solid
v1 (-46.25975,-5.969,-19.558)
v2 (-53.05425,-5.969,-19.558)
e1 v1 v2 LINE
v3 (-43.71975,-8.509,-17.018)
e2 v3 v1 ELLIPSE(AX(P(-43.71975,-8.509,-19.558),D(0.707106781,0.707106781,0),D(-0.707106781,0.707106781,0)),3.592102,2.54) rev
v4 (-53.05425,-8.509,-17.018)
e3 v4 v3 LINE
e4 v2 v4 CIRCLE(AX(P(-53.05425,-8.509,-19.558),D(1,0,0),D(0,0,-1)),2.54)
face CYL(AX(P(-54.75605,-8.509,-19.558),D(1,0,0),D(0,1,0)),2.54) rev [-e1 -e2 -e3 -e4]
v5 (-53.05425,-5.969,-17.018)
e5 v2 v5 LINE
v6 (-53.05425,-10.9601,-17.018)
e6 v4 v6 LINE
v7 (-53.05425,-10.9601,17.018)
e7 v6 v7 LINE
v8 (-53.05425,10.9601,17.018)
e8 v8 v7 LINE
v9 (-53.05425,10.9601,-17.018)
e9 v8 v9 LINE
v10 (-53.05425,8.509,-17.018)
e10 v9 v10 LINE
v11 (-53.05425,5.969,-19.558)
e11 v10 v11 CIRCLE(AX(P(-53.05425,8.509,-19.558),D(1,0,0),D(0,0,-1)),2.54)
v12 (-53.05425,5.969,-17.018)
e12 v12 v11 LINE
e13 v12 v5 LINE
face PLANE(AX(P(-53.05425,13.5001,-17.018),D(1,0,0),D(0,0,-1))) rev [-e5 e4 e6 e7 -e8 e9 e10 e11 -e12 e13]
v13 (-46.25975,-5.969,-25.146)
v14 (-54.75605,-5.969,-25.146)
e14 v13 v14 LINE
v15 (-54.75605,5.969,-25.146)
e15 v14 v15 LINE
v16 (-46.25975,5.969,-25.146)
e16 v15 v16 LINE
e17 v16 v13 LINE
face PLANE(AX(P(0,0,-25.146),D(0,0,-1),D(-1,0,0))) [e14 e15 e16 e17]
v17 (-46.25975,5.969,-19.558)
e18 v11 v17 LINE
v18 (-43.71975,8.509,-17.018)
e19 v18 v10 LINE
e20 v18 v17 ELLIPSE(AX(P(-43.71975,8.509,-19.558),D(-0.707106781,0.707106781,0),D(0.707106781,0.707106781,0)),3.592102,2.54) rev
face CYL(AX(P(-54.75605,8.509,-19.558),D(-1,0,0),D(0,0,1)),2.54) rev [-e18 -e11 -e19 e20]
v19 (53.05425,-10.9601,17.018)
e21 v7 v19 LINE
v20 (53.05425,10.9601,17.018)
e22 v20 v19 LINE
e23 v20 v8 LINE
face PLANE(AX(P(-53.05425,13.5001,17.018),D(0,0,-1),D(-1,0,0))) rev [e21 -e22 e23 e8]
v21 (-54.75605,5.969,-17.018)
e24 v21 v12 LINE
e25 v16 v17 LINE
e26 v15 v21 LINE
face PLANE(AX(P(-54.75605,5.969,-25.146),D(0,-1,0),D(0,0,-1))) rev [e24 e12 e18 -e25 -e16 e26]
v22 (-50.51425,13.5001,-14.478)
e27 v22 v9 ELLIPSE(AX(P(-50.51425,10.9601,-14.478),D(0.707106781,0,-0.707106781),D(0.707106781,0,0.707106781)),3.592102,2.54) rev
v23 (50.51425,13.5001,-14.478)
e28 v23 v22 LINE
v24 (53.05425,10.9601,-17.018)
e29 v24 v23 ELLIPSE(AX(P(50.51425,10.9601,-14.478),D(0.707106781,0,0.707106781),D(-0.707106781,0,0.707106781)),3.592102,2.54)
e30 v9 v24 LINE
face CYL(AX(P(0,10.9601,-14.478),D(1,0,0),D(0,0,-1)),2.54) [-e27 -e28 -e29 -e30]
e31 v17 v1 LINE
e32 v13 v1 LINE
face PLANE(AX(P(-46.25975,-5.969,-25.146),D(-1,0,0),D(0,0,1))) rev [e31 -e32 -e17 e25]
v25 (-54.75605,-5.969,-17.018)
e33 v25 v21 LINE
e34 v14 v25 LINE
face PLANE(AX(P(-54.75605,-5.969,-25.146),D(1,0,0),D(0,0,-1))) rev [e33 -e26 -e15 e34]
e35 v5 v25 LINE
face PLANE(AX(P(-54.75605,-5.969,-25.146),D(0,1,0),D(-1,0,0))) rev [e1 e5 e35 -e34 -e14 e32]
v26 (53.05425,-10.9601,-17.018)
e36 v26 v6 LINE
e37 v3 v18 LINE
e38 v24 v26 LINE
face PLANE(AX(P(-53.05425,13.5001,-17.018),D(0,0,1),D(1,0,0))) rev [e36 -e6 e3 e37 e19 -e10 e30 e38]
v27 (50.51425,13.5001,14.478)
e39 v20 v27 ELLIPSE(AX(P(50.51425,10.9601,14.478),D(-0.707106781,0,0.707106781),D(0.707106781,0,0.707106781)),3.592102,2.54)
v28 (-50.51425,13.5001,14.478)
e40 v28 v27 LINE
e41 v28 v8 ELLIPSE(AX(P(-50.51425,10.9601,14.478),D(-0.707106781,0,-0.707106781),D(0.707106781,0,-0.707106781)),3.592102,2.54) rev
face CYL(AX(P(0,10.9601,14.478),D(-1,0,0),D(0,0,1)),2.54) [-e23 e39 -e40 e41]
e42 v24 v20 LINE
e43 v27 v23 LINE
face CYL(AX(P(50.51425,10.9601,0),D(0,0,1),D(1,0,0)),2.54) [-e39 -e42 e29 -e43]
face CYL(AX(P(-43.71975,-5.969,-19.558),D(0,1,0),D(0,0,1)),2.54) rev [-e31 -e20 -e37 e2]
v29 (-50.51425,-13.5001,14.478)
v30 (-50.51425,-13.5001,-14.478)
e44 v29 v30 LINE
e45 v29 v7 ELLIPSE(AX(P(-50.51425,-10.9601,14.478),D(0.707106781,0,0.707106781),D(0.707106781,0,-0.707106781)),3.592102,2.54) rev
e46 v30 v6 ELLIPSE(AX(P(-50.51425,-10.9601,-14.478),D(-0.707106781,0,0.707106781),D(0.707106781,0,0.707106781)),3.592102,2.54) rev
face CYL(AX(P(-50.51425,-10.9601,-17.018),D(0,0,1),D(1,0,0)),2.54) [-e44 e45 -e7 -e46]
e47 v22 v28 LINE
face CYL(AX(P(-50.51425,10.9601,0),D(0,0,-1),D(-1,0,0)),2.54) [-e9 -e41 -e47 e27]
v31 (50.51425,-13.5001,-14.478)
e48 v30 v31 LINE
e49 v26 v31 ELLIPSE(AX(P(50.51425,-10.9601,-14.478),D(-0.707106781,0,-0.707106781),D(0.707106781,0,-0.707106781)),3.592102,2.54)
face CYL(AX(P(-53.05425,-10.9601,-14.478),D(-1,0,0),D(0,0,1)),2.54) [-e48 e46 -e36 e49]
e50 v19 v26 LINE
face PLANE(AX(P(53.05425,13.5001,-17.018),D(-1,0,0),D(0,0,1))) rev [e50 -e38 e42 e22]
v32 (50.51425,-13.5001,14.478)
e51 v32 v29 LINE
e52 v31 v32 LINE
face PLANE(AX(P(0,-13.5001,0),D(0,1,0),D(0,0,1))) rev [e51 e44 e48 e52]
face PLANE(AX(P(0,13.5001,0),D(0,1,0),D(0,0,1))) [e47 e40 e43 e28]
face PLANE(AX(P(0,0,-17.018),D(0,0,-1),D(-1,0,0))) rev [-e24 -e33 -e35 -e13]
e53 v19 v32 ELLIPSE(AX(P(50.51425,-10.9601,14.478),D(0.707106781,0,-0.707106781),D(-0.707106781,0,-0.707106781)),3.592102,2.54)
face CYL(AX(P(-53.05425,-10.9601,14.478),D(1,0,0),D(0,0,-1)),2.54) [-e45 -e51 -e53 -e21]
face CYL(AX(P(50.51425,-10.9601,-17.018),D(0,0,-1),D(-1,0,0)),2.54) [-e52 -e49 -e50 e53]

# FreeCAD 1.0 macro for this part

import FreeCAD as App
import Part
import Sketcher

V = App.Vector
Q = App.Units.Quantity


def edges_at(feature, points):
    """Names of the edges that pass closest to the given points."""
    edges = feature.Shape.Edges
    near = lambda p: min(range(len(edges)), key=lambda i: edges[i].distToShape(Part.Vertex(*p))[0])
    return sorted({f"Edge{near(p) + 1}" for p in points})


def add_polygon(sketch, points):
    """Adds a closed chain of lines whose ends are joined by coincident constraints."""
    first, n = sketch.GeometryCount, len(points)
    for a, b in zip(points, points[1:] + points[:1]):
        sketch.addGeometry(Part.LineSegment(App.Vector(*a, 0), App.Vector(*b, 0)), False)
    for i in range(n):
        sketch.addConstraint(Sketcher.Constraint("Coincident", first + i, 2, first + (i + 1) % n, 1))

doc = App.newDocument("Part")
body = doc.addObject("PartDesign::Body", "Body")

sketch1 = body.newObject("Sketcher::SketchObject", "Sketch")
sketch1.AttachmentSupport = (doc.getObject("XZ_Plane"), [""])
sketch1.MapMode = "FlatFace"
add_polygon(sketch1, [(-53, -17), (-53, 17), (53, 17), (53, -17)])
sketch1.addConstraint(Sketcher.Constraint("Vertical", 0))
sketch1.addConstraint(Sketcher.Constraint("Horizontal", 1))
sketch1.addConstraint(Sketcher.Constraint("Vertical", 2))
sketch1.addConstraint(Sketcher.Constraint("Horizontal", 3))
sketch1.addConstraint(Sketcher.Constraint("Symmetric", 0, 2, 2, 2, -1, 1))
sketch1.addConstraint(Sketcher.Constraint("DistanceY", 0, 1, 0, 2, Q("1.34 in")))
sketch1.addConstraint(Sketcher.Constraint("DistanceX", 1, 1, 1, 2, Q("4.1775 in")))
pad1 = body.newObject("PartDesign::Pad", "Pad")
pad1.Profile = sketch1
pad1.Length = Q("1.063 in")
pad1.Midplane = True
doc.recompute()

fillet = body.newObject("PartDesign::Fillet", "Fillet")
fillet.Base = (pad1, edges_at(pad1, [
    (-53.054, 13.5, 0),
    (0, 13.5, 17.018),
    (53.054, 13.5, 0),
    (0, -13.5, 17.018),
    (-53.054, -13.5, 0),
    (0, -13.5, -17.018),
    (53.054, -13.5, 0),
    (0, 13.5, -17.018),
]))
fillet.Radius = Q("0.1 in")

sketch2 = body.newObject("Sketcher::SketchObject", "Sketch001")
sketch2.AttachmentSupport = (doc.getObject("XY_Plane"), [""])
sketch2.MapMode = "FlatFace"
sketch2.AttachmentOffset = App.Placement(V(0, 0, -0.67 * 25.4), App.Rotation())
add_polygon(sketch2, [(-46, 6), (-46, -6), (-55, -6), (-55, 6)])
sketch2.addConstraint(Sketcher.Constraint("Vertical", 0))
sketch2.addConstraint(Sketcher.Constraint("Horizontal", 1))
sketch2.addConstraint(Sketcher.Constraint("Vertical", 2))
sketch2.addConstraint(Sketcher.Constraint("Horizontal", 3))
sketch2.addConstraint(Sketcher.Constraint("DistanceY", 0, 2, 0, 1, Q("0.47 in")))
sketch2.addConstraint(Sketcher.Constraint("DistanceX", 1, 2, 1, 1, Q("0.3345 in")))
sketch2.addConstraint(Sketcher.Constraint("DistanceY", 0, 2, -1, 1, Q("0.235 in")))
sketch2.addConstraint(Sketcher.Constraint("DistanceX", 0, 2, -1, 1, Q("46.25975 mm")))
pad2 = body.newObject("PartDesign::Pad", "Pad001")
pad2.Profile = sketch2
pad2.Length = Q("0.32 in")
pad2.Reversed = True
doc.recompute()

fillet2 = body.newObject("PartDesign::Fillet", "Fillet001")
fillet2.Base = (pad2, edges_at(pad2, [(-49.657, 5.969, -17.018), (-46.26, 0, -17.018), (-49.657, -5.969, -17.018)]))
fillet2.Radius = Q("0.1 in")

doc.recompute()
